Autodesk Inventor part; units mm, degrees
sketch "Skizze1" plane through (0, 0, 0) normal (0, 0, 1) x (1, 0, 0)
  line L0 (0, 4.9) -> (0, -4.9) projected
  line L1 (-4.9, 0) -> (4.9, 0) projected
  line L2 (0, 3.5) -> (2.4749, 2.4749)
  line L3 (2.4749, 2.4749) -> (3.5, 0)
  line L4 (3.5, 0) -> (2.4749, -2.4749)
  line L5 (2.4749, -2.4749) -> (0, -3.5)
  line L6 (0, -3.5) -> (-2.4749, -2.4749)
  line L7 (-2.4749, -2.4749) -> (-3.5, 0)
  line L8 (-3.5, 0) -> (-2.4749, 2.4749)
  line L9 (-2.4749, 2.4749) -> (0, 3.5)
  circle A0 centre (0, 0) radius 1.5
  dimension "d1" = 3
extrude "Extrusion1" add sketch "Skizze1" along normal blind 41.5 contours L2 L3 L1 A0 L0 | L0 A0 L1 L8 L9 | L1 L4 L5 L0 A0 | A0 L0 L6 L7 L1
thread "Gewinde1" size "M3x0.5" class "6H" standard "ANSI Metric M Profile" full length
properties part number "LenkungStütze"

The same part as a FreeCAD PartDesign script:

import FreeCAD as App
import Part
import Sketcher
Q = App.Units.Quantity

doc = App.newDocument("Part")
params = doc.addObject("Spreadsheet::Sheet", "Params")
for row, (alias, value) in enumerate([
    ("sketch1_diameter", "3 mm"),
    ("pad1_length", "41.5 mm"),
], start=1):
    params.set(f"A{row}", alias)
    params.set(f"B{row}", "=" + value)
    params.setAlias(f"B{row}", alias)

body = doc.addObject("PartDesign::Body", "Body")

sketch1 = doc.addObject("Sketcher::SketchObject", "Sketch")
body.addObject(sketch1)
sketch1.AttachmentSupport = (doc.XY_Plane, [""])
sketch1.MapMode = "FlatFace"
sketch1.addGeometry([
    Part.LineSegment(App.Vector(2.5, 2.5, 0), App.Vector(0, 3.5, 0)),
    Part.LineSegment(App.Vector(0, 3.5, 0), App.Vector(-2.5, 2.5, 0)),
    Part.LineSegment(App.Vector(-2.5, 2.5, 0), App.Vector(-3.5, 0, 0)),
    Part.LineSegment(App.Vector(-3.5, 0, 0), App.Vector(-2.5, -2.5, 0)),
    Part.LineSegment(App.Vector(-2.5, -2.5, 0), App.Vector(0, -3.5, 0)),
    Part.LineSegment(App.Vector(0, -3.5, 0), App.Vector(2.5, -2.5, 0)),
    Part.LineSegment(App.Vector(2.5, -2.5, 0), App.Vector(3.5, 0, 0)),
    Part.LineSegment(App.Vector(3.5, 0, 0), App.Vector(2.5, 2.5, 0)),
    Part.Circle(App.Vector(0, 0, 0), App.Vector(0, 0, 1), 1.5),
], False)
sketch1.addConstraint([
    Sketcher.Constraint("Coincident", 0, 2, 1, 1),
    Sketcher.Constraint("Coincident", 1, 2, 2, 1),
    Sketcher.Constraint("Coincident", 2, 2, 3, 1),
    Sketcher.Constraint("Coincident", 3, 2, 4, 1),
    Sketcher.Constraint("Coincident", 4, 2, 5, 1),
    Sketcher.Constraint("Coincident", 5, 2, 6, 1),
    Sketcher.Constraint("Coincident", 6, 2, 7, 1),
    Sketcher.Constraint("Coincident", 7, 2, 0, 1),
    Sketcher.Constraint("Coincident", 8, 3, -1, 1),
    Sketcher.Constraint("Symmetric", 0, 2, 4, 2, -1, 1),
    Sketcher.Constraint("Symmetric", 1, 2, 5, 2, -1, 1),
    Sketcher.Constraint("Symmetric", 2, 2, 6, 2, -1, 1),
    Sketcher.Constraint("Symmetric", 3, 2, 7, 2, -1, 1),
    Sketcher.Constraint("Symmetric", 3, 2, 5, 2, -2),
    Sketcher.Constraint("PointOnObject", 0, 2, -2),
    Sketcher.Constraint("PointOnObject", 2, 2, -1),
    Sketcher.Constraint("Perpendicular", 0, 2),
    Sketcher.Constraint("Equal", 1, 2),
    Sketcher.Constraint("Diameter", 8, 3.0),
    Sketcher.Constraint("Angle", 0, Q("157.5007 deg")),
    Sketcher.Constraint("DistanceY", 4, 2, 0, 2, 7.0),
])
sketch1.setExpression("Constraints[18]", "Params.sketch1_diameter")
pad1 = doc.addObject("PartDesign::Pad", "Pad")
body.addObject(pad1)
pad1.Profile = sketch1
pad1.setExpression("Length", "Params.pad1_length")

doc.recompute()
